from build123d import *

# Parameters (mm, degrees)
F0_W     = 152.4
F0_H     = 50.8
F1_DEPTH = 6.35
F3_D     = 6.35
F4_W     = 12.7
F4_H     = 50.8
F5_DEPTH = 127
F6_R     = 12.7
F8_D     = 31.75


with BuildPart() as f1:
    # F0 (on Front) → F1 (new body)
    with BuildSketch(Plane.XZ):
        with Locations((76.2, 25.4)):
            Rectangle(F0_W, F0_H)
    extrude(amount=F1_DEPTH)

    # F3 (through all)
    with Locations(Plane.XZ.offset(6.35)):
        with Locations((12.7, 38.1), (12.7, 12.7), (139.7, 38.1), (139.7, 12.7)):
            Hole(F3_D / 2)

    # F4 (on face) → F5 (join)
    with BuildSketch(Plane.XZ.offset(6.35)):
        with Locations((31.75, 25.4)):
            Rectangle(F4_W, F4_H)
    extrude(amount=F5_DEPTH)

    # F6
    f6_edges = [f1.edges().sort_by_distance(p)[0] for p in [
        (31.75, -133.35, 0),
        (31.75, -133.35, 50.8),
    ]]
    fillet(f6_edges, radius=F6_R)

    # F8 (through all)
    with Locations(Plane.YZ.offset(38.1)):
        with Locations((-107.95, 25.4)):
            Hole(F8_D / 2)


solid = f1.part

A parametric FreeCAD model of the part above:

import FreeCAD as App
import Part
import Sketcher

V = App.Vector
Q = App.Units.Quantity


def edges_at(feature, points):
    """Names of the edges that pass closest to the given points."""
    edges = feature.Shape.Edges
    near = lambda p: min(range(len(edges)), key=lambda i: edges[i].distToShape(Part.Vertex(*p))[0])
    return sorted({f"Edge{near(p) + 1}" for p in points})

doc = App.newDocument("Part")
body = doc.addObject("PartDesign::Body", "Body")

# Sketch on XZ plane
sketch1 = body.newObject("Sketcher::SketchObject", "Sketch")
sketch1.AttachmentSupport = (doc.getObject("XZ_Plane"), [""])
sketch1.MapMode = "FlatFace"
sketch1.addGeometry([
    Part.LineSegment(V(0, 50.8, 0), V(0, 0, 0)),
    Part.LineSegment(V(0, 0, 0), V(152.4, 0, 0)),
    Part.LineSegment(V(152.4, 0, 0), V(152.4, 50.8, 0)),
    Part.LineSegment(V(152.4, 50.8, 0), V(0, 50.8, 0)),
], False)
sketch1.addConstraint([
    Sketcher.Constraint("Coincident", 0, 2, 1, 1),
    Sketcher.Constraint("Coincident", 1, 2, 2, 1),
    Sketcher.Constraint("Coincident", 2, 2, 3, 1),
    Sketcher.Constraint("Coincident", 3, 2, 0, 1),
    Sketcher.Constraint("Vertical", 0),
    Sketcher.Constraint("Horizontal", 1),
    Sketcher.Constraint("Vertical", 2),
    Sketcher.Constraint("Horizontal", 3),
    Sketcher.Constraint("Coincident", 0, 2, -1, 1),
    Sketcher.Constraint("DistanceX", 1, 1, 1, 2, Q("6 in")),
    Sketcher.Constraint("DistanceY", 0, 2, 0, 1, Q("2 in")),
])
pad1 = body.newObject("PartDesign::Pad", "Pad")
pad1.Profile = sketch1
pad1.Length = Q("0.25 in")

# Sketch on XZ plane
sketch2 = body.newObject("Sketcher::SketchObject", "Sketch001")
sketch2.AttachmentSupport = (doc.getObject("XZ_Plane"), [""])
sketch2.MapMode = "FlatFace"
sketch2.AttachmentOffset = App.Placement(V(0, 0, 0.25 * 25.4), App.Rotation())
sketch2.addGeometry([
    Part.Circle(V(12.7, 38.1, 0), V(0, 0, 1), 3.175),
    Part.Circle(V(12.7, 12.7, 0), V(0, 0, 1), 3.175),
    Part.Circle(V(139.7, 38.1, 0), V(0, 0, 1), 3.175),
    Part.Circle(V(139.7, 12.7, 0), V(0, 0, 1), 3.175),
], False)
sketch2.addConstraint([
    Sketcher.Constraint("Equal", 0, 1),
    Sketcher.Constraint("Equal", 1, 2),
    Sketcher.Constraint("Equal", 2, 3),
    Sketcher.Constraint("Horizontal", 0, 3, 2, 3),
    Sketcher.Constraint("Horizontal", 1, 3, 3, 3),
    Sketcher.Constraint("Vertical", 0, 3, 1, 3),
    Sketcher.Constraint("Vertical", 2, 3, 3, 3),
    Sketcher.Constraint("Diameter", 0, Q("0.25 in")),
    Sketcher.Constraint("DistanceY", 1, 3, 0, 3, Q("1 in")),
    Sketcher.Constraint("DistanceX", 0, 3, 2, 3, Q("5 in")),
    Sketcher.Constraint("DistanceX", -1, 1, 0, 3, Q("0.5 in")),
    Sketcher.Constraint("DistanceY", -1, 1, 0, 3, Q("1.5 in")),
])
doc.recompute()
hole = body.newObject("PartDesign::Hole", "Hole")
hole.Profile = sketch2
hole.ThreadType = "None"
hole.Diameter = Q("0.25 in")
hole.DepthType = "ThroughAll"

# Sketch on XZ plane
sketch3 = body.newObject("Sketcher::SketchObject", "Sketch002")
sketch3.AttachmentSupport = (doc.getObject("XZ_Plane"), [""])
sketch3.MapMode = "FlatFace"
sketch3.AttachmentOffset = App.Placement(V(0, 0, 0.25 * 25.4), App.Rotation())
sketch3.addGeometry([
    Part.LineSegment(V(25.4, 50.8, 0), V(25.4, 0, 0)),
    Part.LineSegment(V(25.4, 0, 0), V(38.1, 0, 0)),
    Part.LineSegment(V(38.1, 0, 0), V(38.1, 50.8, 0)),
    Part.LineSegment(V(38.1, 50.8, 0), V(25.4, 50.8, 0)),
], False)
sketch3.addConstraint([
    Sketcher.Constraint("Coincident", 0, 2, 1, 1),
    Sketcher.Constraint("Coincident", 1, 2, 2, 1),
    Sketcher.Constraint("Coincident", 2, 2, 3, 1),
    Sketcher.Constraint("Coincident", 3, 2, 0, 1),
    Sketcher.Constraint("Vertical", 0),
    Sketcher.Constraint("Horizontal", 1),
    Sketcher.Constraint("Vertical", 2),
    Sketcher.Constraint("Horizontal", 3),
    Sketcher.Constraint("PointOnObject", 0, 2, -1),
    Sketcher.Constraint("DistanceY", 0, 2, 0, 1, Q("2 in")),
    Sketcher.Constraint("DistanceX", 1, 1, 1, 2, Q("0.5 in")),
    Sketcher.Constraint("DistanceX", -1, 1, 0, 2, Q("1 in")),
])
pad2 = body.newObject("PartDesign::Pad", "Pad001")
pad2.Profile = sketch3
pad2.Length = Q("5 in")
doc.recompute()

fillet = body.newObject("PartDesign::Fillet", "Fillet")
fillet.Base = (pad2, edges_at(pad2, [(31.75, -133.35, 0), (31.75, -133.35, 50.8)]))
fillet.Radius = Q("0.5 in")

# Sketch on YZ plane
sketch4 = body.newObject("Sketcher::SketchObject", "Sketch003")
sketch4.AttachmentSupport = (doc.getObject("YZ_Plane"), [""])
sketch4.MapMode = "FlatFace"
sketch4.AttachmentOffset = App.Placement(V(0, 0, 1.5 * 25.4), App.Rotation())
sketch4.addGeometry(Part.Circle(V(-107.95, 25.4, 0), V(0, 0, 1), 15.875), False)
sketch4.addConstraint([
    Sketcher.Constraint("Diameter", 0, Q("1.25 in")),
    Sketcher.Constraint("DistanceY", -1, 1, 0, 3, Q("1 in")),
    Sketcher.Constraint("DistanceX", 0, 3, -1, 1, Q("4.25 in")),
])
doc.recompute()
hole2 = body.newObject("PartDesign::Hole", "Hole001")
hole2.Profile = sketch4
hole2.ThreadType = "None"
hole2.Diameter = Q("1.25 in")
hole2.DepthType = "ThroughAll"

doc.recompute()
